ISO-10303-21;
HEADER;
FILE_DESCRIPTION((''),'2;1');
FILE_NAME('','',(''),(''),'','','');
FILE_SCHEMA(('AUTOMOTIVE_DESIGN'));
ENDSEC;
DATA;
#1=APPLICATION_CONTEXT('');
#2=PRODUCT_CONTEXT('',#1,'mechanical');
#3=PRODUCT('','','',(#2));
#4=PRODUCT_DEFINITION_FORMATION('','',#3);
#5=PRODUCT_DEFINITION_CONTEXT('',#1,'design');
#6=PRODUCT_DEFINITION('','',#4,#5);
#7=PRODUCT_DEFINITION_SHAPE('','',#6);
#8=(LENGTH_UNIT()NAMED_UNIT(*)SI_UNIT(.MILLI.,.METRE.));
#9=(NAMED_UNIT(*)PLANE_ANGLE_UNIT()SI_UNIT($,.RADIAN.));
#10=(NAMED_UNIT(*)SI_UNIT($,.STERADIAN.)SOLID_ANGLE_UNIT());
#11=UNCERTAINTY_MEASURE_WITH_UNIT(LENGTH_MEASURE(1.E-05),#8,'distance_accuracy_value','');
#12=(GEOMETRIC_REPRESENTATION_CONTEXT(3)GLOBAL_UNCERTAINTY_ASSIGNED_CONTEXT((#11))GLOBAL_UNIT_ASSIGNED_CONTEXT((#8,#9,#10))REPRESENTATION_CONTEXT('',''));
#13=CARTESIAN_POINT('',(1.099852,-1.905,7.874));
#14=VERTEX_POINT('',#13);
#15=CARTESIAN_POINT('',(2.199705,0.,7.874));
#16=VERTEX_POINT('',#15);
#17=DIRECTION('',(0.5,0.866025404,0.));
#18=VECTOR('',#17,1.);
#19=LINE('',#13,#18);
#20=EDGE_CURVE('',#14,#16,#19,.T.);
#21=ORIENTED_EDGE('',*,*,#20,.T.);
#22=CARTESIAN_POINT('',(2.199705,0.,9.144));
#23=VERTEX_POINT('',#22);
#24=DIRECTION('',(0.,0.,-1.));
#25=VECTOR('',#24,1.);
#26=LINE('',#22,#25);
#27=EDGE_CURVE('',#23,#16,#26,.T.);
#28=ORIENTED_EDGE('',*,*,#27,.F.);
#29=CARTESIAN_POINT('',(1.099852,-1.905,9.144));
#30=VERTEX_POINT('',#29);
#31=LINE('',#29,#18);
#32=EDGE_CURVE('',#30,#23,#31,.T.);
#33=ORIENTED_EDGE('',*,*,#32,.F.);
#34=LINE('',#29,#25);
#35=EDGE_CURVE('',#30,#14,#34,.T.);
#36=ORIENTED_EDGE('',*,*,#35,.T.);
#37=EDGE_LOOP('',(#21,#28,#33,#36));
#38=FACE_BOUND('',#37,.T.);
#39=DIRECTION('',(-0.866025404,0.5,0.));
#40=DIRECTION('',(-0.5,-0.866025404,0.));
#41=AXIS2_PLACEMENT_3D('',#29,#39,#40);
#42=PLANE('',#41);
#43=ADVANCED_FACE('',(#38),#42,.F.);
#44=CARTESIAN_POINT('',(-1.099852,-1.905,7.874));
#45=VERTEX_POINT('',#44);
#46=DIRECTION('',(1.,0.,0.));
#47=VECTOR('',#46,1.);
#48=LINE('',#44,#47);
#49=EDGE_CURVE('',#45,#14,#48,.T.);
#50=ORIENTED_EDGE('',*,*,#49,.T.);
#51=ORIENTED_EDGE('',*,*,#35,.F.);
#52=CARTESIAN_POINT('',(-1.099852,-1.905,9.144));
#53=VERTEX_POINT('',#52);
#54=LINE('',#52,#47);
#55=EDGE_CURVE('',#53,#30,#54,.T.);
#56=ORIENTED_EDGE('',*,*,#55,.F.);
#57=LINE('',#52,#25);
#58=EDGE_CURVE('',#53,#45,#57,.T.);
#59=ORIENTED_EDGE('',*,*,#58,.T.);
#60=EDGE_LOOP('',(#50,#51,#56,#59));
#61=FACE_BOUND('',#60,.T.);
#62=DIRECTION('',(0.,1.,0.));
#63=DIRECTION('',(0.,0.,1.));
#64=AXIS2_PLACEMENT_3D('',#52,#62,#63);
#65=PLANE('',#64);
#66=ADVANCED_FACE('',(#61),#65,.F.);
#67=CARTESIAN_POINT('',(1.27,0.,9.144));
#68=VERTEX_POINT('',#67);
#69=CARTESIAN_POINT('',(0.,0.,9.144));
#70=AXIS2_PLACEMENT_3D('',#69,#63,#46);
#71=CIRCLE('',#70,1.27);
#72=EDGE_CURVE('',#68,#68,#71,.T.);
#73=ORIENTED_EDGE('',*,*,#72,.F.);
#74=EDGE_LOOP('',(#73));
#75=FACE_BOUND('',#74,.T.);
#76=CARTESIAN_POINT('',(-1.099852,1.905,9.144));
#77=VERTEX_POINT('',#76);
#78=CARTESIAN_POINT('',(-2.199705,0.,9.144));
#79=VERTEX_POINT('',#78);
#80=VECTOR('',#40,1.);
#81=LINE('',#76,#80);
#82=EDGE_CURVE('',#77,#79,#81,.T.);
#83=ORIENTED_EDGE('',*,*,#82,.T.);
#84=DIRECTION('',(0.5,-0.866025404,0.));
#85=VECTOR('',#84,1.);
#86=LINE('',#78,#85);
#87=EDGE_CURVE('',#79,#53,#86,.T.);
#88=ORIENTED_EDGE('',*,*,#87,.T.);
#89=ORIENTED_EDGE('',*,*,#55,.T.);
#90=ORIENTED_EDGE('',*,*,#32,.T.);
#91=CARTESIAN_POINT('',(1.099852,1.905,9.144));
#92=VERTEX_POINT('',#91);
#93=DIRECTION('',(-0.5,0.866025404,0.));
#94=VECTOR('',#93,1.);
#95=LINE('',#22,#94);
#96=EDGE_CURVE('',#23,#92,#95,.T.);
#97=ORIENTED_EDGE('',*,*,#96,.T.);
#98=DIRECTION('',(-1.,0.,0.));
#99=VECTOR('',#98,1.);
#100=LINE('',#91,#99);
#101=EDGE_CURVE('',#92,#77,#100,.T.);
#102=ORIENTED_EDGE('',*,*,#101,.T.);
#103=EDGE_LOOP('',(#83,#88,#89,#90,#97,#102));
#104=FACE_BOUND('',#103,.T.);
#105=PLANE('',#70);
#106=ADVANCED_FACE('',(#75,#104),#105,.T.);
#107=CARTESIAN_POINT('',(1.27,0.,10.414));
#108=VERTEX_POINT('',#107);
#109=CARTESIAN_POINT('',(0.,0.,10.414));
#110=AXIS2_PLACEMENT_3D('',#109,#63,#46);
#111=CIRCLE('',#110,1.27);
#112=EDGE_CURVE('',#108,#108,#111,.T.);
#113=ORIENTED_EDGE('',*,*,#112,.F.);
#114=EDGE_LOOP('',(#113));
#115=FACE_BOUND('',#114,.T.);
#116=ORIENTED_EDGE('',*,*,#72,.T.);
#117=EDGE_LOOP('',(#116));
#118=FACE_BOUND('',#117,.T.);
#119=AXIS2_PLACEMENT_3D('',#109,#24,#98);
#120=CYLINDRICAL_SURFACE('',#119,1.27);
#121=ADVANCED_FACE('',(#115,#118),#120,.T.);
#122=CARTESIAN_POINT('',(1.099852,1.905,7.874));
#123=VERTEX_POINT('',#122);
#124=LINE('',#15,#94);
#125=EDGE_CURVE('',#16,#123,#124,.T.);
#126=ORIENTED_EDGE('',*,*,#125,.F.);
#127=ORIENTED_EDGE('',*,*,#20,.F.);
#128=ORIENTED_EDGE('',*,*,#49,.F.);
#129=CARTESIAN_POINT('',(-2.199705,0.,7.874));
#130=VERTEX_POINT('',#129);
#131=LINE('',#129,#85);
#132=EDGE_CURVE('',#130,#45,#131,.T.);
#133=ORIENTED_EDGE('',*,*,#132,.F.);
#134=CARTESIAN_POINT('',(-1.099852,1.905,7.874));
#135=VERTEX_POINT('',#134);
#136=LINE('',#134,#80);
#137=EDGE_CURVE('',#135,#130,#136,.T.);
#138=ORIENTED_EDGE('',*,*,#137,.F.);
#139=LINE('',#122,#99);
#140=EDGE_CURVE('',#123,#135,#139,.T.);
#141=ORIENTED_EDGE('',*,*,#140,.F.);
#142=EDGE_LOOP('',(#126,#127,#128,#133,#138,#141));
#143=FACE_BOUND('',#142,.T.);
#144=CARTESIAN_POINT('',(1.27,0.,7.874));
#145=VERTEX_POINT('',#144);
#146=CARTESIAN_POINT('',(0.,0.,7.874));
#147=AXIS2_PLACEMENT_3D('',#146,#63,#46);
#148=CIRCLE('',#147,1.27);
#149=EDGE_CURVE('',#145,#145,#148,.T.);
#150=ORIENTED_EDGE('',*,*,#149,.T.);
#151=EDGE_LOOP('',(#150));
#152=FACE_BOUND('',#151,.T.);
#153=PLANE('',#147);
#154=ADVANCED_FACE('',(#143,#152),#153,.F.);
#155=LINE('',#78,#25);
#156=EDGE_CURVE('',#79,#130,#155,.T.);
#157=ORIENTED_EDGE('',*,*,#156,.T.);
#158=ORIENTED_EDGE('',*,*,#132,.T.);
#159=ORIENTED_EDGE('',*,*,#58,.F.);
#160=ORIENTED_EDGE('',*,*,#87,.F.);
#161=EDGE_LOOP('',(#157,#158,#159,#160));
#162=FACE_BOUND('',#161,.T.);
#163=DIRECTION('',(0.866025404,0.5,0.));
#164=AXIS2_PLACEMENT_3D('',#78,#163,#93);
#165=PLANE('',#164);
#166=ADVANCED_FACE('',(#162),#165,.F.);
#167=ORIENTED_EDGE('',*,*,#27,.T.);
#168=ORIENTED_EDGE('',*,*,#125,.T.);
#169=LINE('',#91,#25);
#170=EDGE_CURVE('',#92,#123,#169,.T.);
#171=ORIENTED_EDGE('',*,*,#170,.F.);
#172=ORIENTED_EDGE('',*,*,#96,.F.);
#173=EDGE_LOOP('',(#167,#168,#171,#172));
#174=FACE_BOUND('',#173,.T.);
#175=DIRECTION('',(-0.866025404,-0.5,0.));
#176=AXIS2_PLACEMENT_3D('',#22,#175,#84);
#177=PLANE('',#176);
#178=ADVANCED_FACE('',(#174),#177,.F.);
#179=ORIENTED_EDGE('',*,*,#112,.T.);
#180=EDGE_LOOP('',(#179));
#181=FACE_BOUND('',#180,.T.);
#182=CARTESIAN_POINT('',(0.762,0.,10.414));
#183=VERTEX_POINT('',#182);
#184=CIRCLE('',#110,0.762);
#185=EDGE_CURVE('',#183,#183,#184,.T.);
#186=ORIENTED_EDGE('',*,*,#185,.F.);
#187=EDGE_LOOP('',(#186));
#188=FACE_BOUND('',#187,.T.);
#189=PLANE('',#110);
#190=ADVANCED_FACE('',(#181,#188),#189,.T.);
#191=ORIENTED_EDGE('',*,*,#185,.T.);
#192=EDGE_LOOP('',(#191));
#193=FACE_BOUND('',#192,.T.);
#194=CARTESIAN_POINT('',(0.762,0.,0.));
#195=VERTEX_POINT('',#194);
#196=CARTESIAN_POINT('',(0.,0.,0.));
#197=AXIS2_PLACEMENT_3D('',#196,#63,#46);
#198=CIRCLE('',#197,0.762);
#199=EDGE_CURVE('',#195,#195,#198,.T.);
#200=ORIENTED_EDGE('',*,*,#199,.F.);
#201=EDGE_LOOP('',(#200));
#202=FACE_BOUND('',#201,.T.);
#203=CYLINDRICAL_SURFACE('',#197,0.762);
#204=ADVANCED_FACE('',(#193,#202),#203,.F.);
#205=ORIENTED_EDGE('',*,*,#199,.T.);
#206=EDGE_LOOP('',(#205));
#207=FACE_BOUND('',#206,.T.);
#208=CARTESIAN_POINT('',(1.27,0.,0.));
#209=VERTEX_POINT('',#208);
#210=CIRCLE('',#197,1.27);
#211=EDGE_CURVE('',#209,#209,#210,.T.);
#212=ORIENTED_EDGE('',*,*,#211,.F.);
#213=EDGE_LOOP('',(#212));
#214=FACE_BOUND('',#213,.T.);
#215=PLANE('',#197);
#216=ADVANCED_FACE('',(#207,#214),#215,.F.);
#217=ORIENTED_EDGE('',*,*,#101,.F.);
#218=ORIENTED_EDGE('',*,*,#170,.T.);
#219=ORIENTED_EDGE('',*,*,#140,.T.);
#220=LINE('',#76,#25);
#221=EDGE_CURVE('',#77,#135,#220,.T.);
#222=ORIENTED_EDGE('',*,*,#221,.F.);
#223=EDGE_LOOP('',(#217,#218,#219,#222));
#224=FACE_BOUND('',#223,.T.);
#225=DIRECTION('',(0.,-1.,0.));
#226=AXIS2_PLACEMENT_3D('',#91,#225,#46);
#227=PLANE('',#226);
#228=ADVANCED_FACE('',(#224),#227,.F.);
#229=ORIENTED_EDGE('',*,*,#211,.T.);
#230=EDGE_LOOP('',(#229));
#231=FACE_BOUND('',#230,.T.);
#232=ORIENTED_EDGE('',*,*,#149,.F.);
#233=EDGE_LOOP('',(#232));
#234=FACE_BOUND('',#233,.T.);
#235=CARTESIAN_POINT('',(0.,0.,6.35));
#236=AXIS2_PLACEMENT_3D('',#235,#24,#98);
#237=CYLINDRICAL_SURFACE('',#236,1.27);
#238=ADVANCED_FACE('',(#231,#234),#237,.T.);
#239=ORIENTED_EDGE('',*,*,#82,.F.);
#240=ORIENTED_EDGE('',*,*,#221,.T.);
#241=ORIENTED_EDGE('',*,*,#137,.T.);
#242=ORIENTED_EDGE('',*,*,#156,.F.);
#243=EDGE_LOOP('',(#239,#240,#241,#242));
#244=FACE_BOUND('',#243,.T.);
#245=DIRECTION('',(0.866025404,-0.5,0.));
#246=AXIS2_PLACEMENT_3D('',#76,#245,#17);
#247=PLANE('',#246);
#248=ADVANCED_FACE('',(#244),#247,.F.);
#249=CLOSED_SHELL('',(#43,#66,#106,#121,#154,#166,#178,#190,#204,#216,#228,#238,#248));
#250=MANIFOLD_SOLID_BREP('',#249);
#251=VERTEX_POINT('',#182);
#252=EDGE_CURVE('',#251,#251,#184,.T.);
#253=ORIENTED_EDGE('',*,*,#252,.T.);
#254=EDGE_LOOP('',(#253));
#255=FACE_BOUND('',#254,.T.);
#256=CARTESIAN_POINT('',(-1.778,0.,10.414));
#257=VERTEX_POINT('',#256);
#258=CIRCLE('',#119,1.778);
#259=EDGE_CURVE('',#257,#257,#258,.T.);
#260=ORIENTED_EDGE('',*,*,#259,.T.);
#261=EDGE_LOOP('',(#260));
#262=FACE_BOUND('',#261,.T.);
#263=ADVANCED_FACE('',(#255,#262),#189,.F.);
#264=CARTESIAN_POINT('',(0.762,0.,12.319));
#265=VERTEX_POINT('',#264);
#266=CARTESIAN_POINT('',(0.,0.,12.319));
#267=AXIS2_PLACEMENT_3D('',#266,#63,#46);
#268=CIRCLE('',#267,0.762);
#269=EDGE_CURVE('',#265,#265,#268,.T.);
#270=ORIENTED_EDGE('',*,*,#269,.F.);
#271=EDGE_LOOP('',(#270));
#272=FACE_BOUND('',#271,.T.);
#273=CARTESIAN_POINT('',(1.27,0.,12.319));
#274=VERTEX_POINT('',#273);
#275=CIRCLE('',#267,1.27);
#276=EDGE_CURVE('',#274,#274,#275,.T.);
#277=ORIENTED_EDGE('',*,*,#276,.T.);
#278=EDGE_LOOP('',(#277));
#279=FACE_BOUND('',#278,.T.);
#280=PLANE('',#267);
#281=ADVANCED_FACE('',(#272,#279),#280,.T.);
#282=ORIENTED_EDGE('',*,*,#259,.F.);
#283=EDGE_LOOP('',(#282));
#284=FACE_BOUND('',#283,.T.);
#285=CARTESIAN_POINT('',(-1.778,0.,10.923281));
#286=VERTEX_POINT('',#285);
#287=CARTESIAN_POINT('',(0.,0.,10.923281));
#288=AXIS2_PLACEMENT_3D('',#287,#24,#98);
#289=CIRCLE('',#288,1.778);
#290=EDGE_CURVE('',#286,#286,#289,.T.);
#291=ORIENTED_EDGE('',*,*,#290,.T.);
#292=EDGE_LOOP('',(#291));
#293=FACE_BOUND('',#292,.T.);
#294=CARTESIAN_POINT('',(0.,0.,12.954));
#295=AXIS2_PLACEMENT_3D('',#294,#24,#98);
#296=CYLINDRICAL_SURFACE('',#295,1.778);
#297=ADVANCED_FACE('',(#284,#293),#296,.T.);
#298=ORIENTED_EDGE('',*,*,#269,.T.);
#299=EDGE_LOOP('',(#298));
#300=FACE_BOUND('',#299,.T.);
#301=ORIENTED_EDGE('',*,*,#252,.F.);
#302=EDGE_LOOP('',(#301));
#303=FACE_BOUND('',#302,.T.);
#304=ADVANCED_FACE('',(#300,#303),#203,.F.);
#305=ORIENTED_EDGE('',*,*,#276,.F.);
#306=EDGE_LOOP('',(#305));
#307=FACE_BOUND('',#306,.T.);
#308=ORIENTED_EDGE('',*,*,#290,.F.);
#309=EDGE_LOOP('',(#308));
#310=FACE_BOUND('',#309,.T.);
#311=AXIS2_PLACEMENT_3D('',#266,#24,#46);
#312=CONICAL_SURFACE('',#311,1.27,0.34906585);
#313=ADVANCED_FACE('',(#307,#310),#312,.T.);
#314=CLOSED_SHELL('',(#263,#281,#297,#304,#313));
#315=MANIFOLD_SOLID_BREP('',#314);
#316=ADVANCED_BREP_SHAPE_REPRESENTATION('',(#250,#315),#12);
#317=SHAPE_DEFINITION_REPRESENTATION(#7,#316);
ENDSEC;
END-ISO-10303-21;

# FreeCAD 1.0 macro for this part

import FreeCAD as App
import Part
import Sketcher
Q = App.Units.Quantity


def faces_at(feature, points):
    """Names of the faces that lie closest to the given points."""
    faces = feature.Shape.Faces
    near = lambda p: min(range(len(faces)), key=lambda i: faces[i].distToShape(Part.Vertex(*p))[0])
    return sorted({f"Face{near(p) + 1}" for p in points})

doc = App.newDocument("Part")
body = doc.addObject("PartDesign::Body", "Body")

# Sketch on XY plane
sketch1 = body.newObject("Sketcher::SketchObject", "Sketch")
sketch1.AttachmentSupport = (doc.getObject("XY_Plane"), [""])
sketch1.MapMode = "FlatFace"
sketch1.addGeometry(Part.Circle(App.Vector(0, 0, 0), App.Vector(0, 0, 1), 1.3), False)
sketch1.addConstraint(Sketcher.Constraint("Coincident", 0, 3, -1, 1))
sketch1.addConstraint(Sketcher.Constraint("Diameter", 0, Q("0.1 in")))
pad1 = body.newObject("PartDesign::Pad", "Pad")
pad1.Profile = sketch1
pad1.Length = Q("0.25 in")

# Sketch on XY plane
sketch2 = body.newObject("Sketcher::SketchObject", "Sketch001")
sketch2.AttachmentSupport = (doc.getObject("XY_Plane"), [""])
sketch2.MapMode = "FlatFace"
sketch2.AttachmentOffset = App.Placement(App.Vector(0, 0, 0.25 * 25.4), App.Rotation())
sketch2.addGeometry(Part.Circle(App.Vector(0, 0, 0), App.Vector(0, 0, 1), 1.3), False)
sketch2.addConstraint(Sketcher.Constraint("Coincident", 0, 3, -1, 1))
sketch2.addConstraint(Sketcher.Constraint("Diameter", 0, Q("0.1 in")))
pad2 = body.newObject("PartDesign::Pad", "Pad001")
pad2.Profile = sketch2
pad2.Length = Q("0.01 in")

# Sketch on XY plane
sketch3 = body.newObject("Sketcher::SketchObject", "Sketch002")
sketch3.AttachmentSupport = (doc.getObject("XY_Plane"), [""])
sketch3.MapMode = "FlatFace"
sketch3.AttachmentOffset = App.Placement(App.Vector(0, 0, 0.26 * 25.4), App.Rotation())
sketch3.addGeometry(Part.Circle(App.Vector(0, 0, 0), App.Vector(0, 0, 1), 1.3), False)
sketch3.addConstraint(Sketcher.Constraint("Coincident", 0, 3, -1, 1))
sketch3.addConstraint(Sketcher.Constraint("Diameter", 0, Q("0.1 in")))
pad3 = body.newObject("PartDesign::Pad", "Pad002")
pad3.Profile = sketch3
pad3.Length = Q("0.05 in")

# Sketch on XY plane
sketch4 = body.newObject("Sketcher::SketchObject", "Sketch003")
sketch4.AttachmentSupport = (doc.getObject("XY_Plane"), [""])
sketch4.MapMode = "FlatFace"
sketch4.AttachmentOffset = App.Placement(App.Vector(0, 0, 0.31 * 25.4), App.Rotation())
sketch4.addGeometry(Part.LineSegment(App.Vector(2.2, 0, 0), App.Vector(1.1, 1.9, 0)), False)
sketch4.addGeometry(Part.LineSegment(App.Vector(1.1, 1.9, 0), App.Vector(-1.1, 1.9, 0)), False)
sketch4.addGeometry(Part.LineSegment(App.Vector(-1.1, 1.9, 0), App.Vector(-2.2, 0, 0)), False)
sketch4.addGeometry(Part.LineSegment(App.Vector(-2.2, 0, 0), App.Vector(-1.1, -1.9, 0)), False)
sketch4.addGeometry(Part.LineSegment(App.Vector(-1.1, -1.9, 0), App.Vector(1.1, -1.9, 0)), False)
sketch4.addGeometry(Part.LineSegment(App.Vector(1.1, -1.9, 0), App.Vector(2.2, 0, 0)), False)
sketch4.addConstraint(Sketcher.Constraint("Coincident", 0, 2, 1, 1))
sketch4.addConstraint(Sketcher.Constraint("Coincident", 1, 2, 2, 1))
sketch4.addConstraint(Sketcher.Constraint("Coincident", 2, 2, 3, 1))
sketch4.addConstraint(Sketcher.Constraint("Coincident", 3, 2, 4, 1))
sketch4.addConstraint(Sketcher.Constraint("Coincident", 4, 2, 5, 1))
sketch4.addConstraint(Sketcher.Constraint("Coincident", 5, 2, 0, 1))
sketch4.addConstraint(Sketcher.Constraint("Horizontal", 1))
sketch4.addConstraint(Sketcher.Constraint("Horizontal", 4))
sketch4.addConstraint(Sketcher.Constraint("Symmetric", 0, 2, 3, 2, -1, 1))
sketch4.addConstraint(Sketcher.Constraint("Symmetric", 2, 2, 5, 2, -1, 1))
sketch4.addConstraint(Sketcher.Constraint("PointOnObject", 2, 2, -1))
sketch4.addConstraint(Sketcher.Constraint("Parallel", 2, 5))
sketch4.addConstraint(Sketcher.Constraint("Vertical", 1, 2, 3, 2))
sketch4.addConstraint(Sketcher.Constraint("Angle", 0, Q("120 deg")))
sketch4.addConstraint(Sketcher.Constraint("DistanceY", 3, 2, 1, 2, Q("0.15 in")))
sketch4.addConstraint(Sketcher.Constraint("DistanceX", 1, 2, 1, 1, Q("2.199705 mm")))
pad4 = body.newObject("PartDesign::Pad", "Pad003")
pad4.Profile = sketch4
pad4.Length = Q("0.05 in")

# Sketch on XY plane
sketch5 = body.newObject("Sketcher::SketchObject", "Sketch004")
sketch5.AttachmentSupport = (doc.getObject("XY_Plane"), [""])
sketch5.MapMode = "FlatFace"
sketch5.AttachmentOffset = App.Placement(App.Vector(0, 0, 0.36 * 25.4), App.Rotation())
sketch5.addGeometry(Part.Circle(App.Vector(0, 0, 0), App.Vector(0, 0, 1), 1.3), False)
sketch5.addConstraint(Sketcher.Constraint("Coincident", 0, 3, -1, 1))
sketch5.addConstraint(Sketcher.Constraint("Diameter", 0, Q("0.1 in")))
pad5 = body.newObject("PartDesign::Pad", "Pad004")
pad5.Profile = sketch5
pad5.Length = Q("0.05 in")
body2 = doc.addObject("PartDesign::Body", "Body001")

# Sketch on XY plane
sketch6 = body2.newObject("Sketcher::SketchObject", "Sketch005")
sketch6.AttachmentSupport = (doc.getObject("XY_Plane001"), [""])
sketch6.MapMode = "FlatFace"
sketch6.AttachmentOffset = App.Placement(App.Vector(0, 0, 0.41 * 25.4), App.Rotation())
sketch6.addGeometry(Part.Circle(App.Vector(0, 0, 0), App.Vector(0, 0, 1), 1.3), False)
sketch6.addConstraint(Sketcher.Constraint("Coincident", 0, 3, -1, 1))
sketch6.addConstraint(Sketcher.Constraint("Diameter", 0, Q("0.1 in")))
pad6 = body2.newObject("PartDesign::Pad", "Pad005")
pad6.Profile = sketch6
pad6.Length = Q("0.075 in")
doc.recompute()

datumplane = body2.newObject("PartDesign::Plane", "DatumPlane")
datumplane.AttachmentSupport = (doc.getObject("XY_Plane001"), [""])
datumplane.MapMode = "FlatFace"
datumplane.AttachmentOffset = App.Placement(App.Vector(0, 0, 0.485 * 25.4), App.Rotation())
draft = body2.newObject("PartDesign::Draft", "Draft")
draft.Base = (pad6, faces_at(pad6, [(-1.27, 0, 11.367)]))
draft.NeutralPlane = (datumplane, [""])
draft.Angle = 20
draft.Reversed = False
body3 = doc.addObject("PartDesign::Body", "Body002")

# Sketch on XY plane
sketch7 = body3.newObject("Sketcher::SketchObject", "Sketch006")
sketch7.AttachmentSupport = (doc.getObject("XY_Plane002"), [""])
sketch7.MapMode = "FlatFace"
sketch7.AttachmentOffset = App.Placement(App.Vector(0, 0, 0.485 * 25.4), App.Rotation())
sketch7.addGeometry(Part.Circle(App.Vector(0, 0, 0), App.Vector(0, 0, 1), 0.8), False)
sketch7.addConstraint(Sketcher.Constraint("Coincident", 0, 3, -1, 1))
sketch7.addConstraint(Sketcher.Constraint("Diameter", 0, Q("0.06 in")))
pad7 = body3.newObject("PartDesign::Pad", "Pad006")
pad7.Profile = sketch7
pad7.Length = 13.319
pad7.Reversed = True
doc.recompute()

body4 = doc.addObject("PartDesign::Body", "Body003")
body4.BaseFeature = body3
boolean = body.newObject("PartDesign::Boolean", "Boolean")
boolean.Type = "Cut"
boolean.addObjects([body4])
doc.recompute()

boolean2 = body2.newObject("PartDesign::Boolean", "Boolean001")
boolean2.Type = "Cut"
boolean2.addObjects([body3])

# Sketch on XY plane
sketch8 = body2.newObject("Sketcher::SketchObject", "Sketch007")
sketch8.AttachmentSupport = (doc.getObject("XY_Plane001"), [""])
sketch8.MapMode = "FlatFace"
sketch8.AttachmentOffset = App.Placement(App.Vector(0, 0, 0.41 * 25.4), App.Rotation())
sketch8.addGeometry(Part.Circle(App.Vector(0, 0, 0), App.Vector(0, 0, 1), 2), False)
sketch8.addGeometry(Part.Circle(App.Vector(0, 0, 0), App.Vector(0, 0, 1), 1.8), False)
sketch8.addConstraint(Sketcher.Constraint("Coincident", 0, 3, -1, 1))
sketch8.addConstraint(Sketcher.Constraint("Coincident", 1, 3, -1, 1))
sketch8.addConstraint(Sketcher.Constraint("Diameter", 1, Q("0.14 in")))
sketch8.addConstraint(Sketcher.Constraint("Diameter", 0, Q("3.926727 mm")))
pocket1 = body2.newObject("PartDesign::Pocket", "Pocket")
pocket1.Profile = sketch8
pocket1.Length = Q("0.1 in")
pocket1.Reversed = True

doc.recompute()
